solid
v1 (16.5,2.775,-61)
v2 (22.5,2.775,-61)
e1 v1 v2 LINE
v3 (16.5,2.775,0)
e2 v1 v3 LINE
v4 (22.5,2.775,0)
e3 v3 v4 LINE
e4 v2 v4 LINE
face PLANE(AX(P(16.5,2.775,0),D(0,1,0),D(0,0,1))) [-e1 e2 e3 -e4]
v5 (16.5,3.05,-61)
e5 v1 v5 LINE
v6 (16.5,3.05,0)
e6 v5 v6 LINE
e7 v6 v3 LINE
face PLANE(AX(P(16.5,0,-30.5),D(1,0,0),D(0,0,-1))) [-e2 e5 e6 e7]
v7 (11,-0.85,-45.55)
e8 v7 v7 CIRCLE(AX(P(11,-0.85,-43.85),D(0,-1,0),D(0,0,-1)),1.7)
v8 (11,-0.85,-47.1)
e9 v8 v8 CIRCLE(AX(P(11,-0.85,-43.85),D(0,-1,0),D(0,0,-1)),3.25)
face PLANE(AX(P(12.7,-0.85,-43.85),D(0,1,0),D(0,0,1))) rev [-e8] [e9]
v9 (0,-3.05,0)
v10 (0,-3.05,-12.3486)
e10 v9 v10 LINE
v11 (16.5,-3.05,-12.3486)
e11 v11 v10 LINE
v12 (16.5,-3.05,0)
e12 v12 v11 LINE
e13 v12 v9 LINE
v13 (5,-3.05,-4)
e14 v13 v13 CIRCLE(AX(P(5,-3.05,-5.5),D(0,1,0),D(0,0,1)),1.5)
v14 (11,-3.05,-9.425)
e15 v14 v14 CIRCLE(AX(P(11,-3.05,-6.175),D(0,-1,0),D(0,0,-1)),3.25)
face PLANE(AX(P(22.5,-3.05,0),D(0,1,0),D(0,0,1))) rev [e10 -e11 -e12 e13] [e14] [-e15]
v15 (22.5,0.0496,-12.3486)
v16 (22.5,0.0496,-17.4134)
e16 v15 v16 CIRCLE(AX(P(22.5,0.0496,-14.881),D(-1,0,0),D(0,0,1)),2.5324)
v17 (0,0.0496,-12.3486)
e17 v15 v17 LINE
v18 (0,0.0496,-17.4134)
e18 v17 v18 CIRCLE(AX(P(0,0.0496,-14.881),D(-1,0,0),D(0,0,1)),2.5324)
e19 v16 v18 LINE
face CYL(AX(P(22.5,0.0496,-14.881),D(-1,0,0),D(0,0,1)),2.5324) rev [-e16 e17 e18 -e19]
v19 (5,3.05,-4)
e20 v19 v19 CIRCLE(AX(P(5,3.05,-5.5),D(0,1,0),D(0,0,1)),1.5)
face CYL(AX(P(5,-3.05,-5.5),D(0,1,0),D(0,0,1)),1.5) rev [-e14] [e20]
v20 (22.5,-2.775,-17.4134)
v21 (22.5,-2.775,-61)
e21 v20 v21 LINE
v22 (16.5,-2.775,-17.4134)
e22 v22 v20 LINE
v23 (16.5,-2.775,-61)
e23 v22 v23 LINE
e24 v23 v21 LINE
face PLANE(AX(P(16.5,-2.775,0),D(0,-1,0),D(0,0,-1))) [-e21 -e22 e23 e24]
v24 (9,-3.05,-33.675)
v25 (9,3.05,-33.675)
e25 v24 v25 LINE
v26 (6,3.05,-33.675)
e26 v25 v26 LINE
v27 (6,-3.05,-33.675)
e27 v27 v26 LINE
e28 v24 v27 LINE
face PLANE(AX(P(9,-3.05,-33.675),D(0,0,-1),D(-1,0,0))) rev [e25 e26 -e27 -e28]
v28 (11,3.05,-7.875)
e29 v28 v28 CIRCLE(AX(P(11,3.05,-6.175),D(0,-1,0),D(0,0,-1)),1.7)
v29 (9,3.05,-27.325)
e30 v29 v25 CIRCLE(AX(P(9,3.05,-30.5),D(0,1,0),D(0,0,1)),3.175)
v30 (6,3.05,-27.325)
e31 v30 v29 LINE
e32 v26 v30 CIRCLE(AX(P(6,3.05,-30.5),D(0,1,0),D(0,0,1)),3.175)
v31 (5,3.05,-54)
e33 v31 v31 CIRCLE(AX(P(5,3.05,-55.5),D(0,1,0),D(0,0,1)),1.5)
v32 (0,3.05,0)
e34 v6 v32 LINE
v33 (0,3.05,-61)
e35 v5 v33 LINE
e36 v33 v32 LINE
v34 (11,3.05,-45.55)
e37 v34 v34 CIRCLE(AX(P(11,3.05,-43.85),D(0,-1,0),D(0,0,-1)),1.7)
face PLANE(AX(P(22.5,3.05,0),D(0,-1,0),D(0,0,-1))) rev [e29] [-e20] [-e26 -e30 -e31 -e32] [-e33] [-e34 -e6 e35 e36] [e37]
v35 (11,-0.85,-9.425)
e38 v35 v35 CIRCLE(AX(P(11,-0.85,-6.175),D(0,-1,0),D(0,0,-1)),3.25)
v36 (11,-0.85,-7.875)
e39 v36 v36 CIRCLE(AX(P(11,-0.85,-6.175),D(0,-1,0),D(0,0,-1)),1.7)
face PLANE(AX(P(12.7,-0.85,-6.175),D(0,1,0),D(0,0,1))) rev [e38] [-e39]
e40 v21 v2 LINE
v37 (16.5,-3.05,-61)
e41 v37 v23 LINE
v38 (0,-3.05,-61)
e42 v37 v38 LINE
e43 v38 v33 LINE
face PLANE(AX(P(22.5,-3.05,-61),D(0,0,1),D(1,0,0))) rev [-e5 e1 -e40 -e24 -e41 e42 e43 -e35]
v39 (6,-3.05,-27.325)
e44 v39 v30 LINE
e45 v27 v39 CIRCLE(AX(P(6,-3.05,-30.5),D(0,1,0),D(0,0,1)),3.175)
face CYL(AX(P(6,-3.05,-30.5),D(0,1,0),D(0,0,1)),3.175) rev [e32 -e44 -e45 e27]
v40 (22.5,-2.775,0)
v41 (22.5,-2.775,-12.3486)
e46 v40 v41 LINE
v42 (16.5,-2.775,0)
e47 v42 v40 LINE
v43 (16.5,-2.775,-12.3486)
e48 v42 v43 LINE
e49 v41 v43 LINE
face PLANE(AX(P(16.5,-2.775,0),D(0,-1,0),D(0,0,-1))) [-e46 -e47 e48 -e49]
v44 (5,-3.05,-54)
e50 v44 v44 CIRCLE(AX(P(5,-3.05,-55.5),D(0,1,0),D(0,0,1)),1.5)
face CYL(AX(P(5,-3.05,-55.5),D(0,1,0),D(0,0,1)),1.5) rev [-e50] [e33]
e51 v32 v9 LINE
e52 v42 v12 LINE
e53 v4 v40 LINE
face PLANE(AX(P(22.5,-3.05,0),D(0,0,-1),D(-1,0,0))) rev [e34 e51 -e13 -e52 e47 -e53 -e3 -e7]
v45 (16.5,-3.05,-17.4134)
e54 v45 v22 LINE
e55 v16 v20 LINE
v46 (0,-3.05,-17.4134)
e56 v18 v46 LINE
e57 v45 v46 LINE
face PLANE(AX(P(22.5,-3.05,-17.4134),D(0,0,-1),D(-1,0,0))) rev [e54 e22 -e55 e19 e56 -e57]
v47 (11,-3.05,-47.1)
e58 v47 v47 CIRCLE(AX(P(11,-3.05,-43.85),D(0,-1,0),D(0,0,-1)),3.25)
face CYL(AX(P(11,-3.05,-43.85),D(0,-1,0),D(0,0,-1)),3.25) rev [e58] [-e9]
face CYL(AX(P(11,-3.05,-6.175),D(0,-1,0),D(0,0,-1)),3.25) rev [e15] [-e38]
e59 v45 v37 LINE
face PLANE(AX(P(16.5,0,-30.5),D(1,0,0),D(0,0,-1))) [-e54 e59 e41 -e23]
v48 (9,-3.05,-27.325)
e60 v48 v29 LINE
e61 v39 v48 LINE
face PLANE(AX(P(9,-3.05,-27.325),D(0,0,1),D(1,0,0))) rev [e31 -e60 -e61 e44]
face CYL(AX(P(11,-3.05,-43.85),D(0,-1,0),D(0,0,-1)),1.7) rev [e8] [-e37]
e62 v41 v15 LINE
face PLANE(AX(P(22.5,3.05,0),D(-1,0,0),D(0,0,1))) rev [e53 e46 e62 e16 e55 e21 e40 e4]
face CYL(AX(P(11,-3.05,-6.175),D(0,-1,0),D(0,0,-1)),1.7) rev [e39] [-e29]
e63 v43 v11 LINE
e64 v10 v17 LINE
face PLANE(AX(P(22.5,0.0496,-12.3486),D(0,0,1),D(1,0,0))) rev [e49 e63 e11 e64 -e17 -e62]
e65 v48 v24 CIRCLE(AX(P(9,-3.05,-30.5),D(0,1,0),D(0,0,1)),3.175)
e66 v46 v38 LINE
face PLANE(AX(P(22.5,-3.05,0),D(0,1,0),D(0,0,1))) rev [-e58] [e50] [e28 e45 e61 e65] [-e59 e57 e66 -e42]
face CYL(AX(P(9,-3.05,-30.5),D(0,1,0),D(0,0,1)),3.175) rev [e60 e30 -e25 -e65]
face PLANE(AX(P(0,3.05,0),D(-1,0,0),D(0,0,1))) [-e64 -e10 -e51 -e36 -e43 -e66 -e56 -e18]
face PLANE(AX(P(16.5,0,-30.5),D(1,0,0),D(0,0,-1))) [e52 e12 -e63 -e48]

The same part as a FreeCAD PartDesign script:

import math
import FreeCAD as App
import Part
import Sketcher

V = App.Vector


def add_polygon(sketch, points):
    """Adds a closed chain of lines whose ends are joined by coincident constraints."""
    first, n = sketch.GeometryCount, len(points)
    for a, b in zip(points, points[1:] + points[:1]):
        sketch.addGeometry(Part.LineSegment(App.Vector(*a, 0), App.Vector(*b, 0)), False)
    for i in range(n):
        sketch.addConstraint(Sketcher.Constraint("Coincident", first + i, 2, first + (i + 1) % n, 1))

doc = App.newDocument("Part")
body = doc.addObject("PartDesign::Body", "Body")

# Sketch on YZ plane
sketch1 = body.newObject("Sketcher::SketchObject", "Sketch")
sketch1.AttachmentSupport = (doc.getObject("YZ_Plane"), [""])
sketch1.MapMode = "FlatFace"
add_polygon(sketch1, [(3, 0), (-3, 0), (-3, -61), (3, -61)])  # lines 0-3
sketch1.addConstraint(Sketcher.Constraint("Horizontal", 0))
sketch1.addConstraint(Sketcher.Constraint("Vertical", 1))
sketch1.addConstraint(Sketcher.Constraint("Horizontal", 2))
sketch1.addConstraint(Sketcher.Constraint("Vertical", 3))
sketch1.addConstraint(Sketcher.Constraint("Symmetric", 0, 2, 3, 2, -1, 1))
sketch1.addConstraint(Sketcher.Constraint("DistanceY", 1, 2, 1, 1, 61.0))
sketch1.addConstraint(Sketcher.Constraint("DistanceX", 0, 2, 0, 1, 6.1))
pad1 = body.newObject("PartDesign::Pad", "Pad")
pad1.Profile = sketch1
pad1.Length = 22.5

# Sketch on YZ plane
sketch2 = body.newObject("Sketcher::SketchObject", "Sketch001")
sketch2.AttachmentSupport = (doc.getObject("YZ_Plane"), [""])
sketch2.MapMode = "FlatFace"
sketch2.AttachmentOffset = App.Placement(V(0, 0, 22.5), App.Rotation())
add_polygon(sketch2, [(11, 8), (-11, 8), (-11, -69), (11, -69)])  # lines 0-3
add_polygon(sketch2, [(-3, -61), (-3, 0), (3, 0), (3, -61)])  # lines 4-7
sketch2.addConstraint(Sketcher.Constraint("Horizontal", 0))
sketch2.addConstraint(Sketcher.Constraint("Vertical", 1))
sketch2.addConstraint(Sketcher.Constraint("Horizontal", 2))
sketch2.addConstraint(Sketcher.Constraint("Vertical", 3))
sketch2.addConstraint(Sketcher.Constraint("Vertical", 4))
sketch2.addConstraint(Sketcher.Constraint("Horizontal", 5))
sketch2.addConstraint(Sketcher.Constraint("Vertical", 6))
sketch2.addConstraint(Sketcher.Constraint("Horizontal", 7))
sketch2.addConstraint(Sketcher.Constraint("Symmetric", 4, 2, 5, 2, -1, 1))
sketch2.addConstraint(Sketcher.Constraint("DistanceY", 4, 1, 4, 2, 61.0))
sketch2.addConstraint(Sketcher.Constraint("DistanceX", 0, 2, 0, 1, 21.16))
sketch2.addConstraint(Sketcher.Constraint("DistanceX", 5, 1, 5, 2, 5.55))
sketch2.addConstraint(Sketcher.Constraint("DistanceY", 1, 2, 1, 1, 76.06))
sketch2.addConstraint(Sketcher.Constraint("DistanceX", 0, 2, -1, 1, 10.58))
sketch2.addConstraint(Sketcher.Constraint("DistanceY", -1, 1, 0, 2, 7.53))
pocket1 = body.newObject("PartDesign::Pocket", "Pocket")
pocket1.Profile = sketch2
pocket1.Length = 6

# Sketch on YZ plane
sketch3 = body.newObject("Sketcher::SketchObject", "Sketch002")
sketch3.AttachmentSupport = (doc.getObject("YZ_Plane"), [""])
sketch3.MapMode = "FlatFace"
sketch3.addGeometry(Part.LineSegment(V(-3, -12.3, 0), V(0, -12.3, 0)), False)
sketch3.addGeometry(Part.ArcOfCircle(Part.Circle(V(0, -14.9, 0), V(0, 0, 1), 2.5), math.radians(-90), math.radians(90)), False)
sketch3.addGeometry(Part.LineSegment(V(0, -17.4, 0), V(-3, -17.4, 0)), False)
sketch3.addGeometry(Part.LineSegment(V(-3, -17.4, 0), V(-3, -12.3, 0)), False)
sketch3.addConstraint(Sketcher.Constraint("Tangent", 0, 2, 1, 2))
sketch3.addConstraint(Sketcher.Constraint("Tangent", 1, 1, 2, 1))
sketch3.addConstraint(Sketcher.Constraint("Coincident", 2, 2, 3, 1))
sketch3.addConstraint(Sketcher.Constraint("Coincident", 3, 2, 0, 1))
sketch3.addConstraint(Sketcher.Constraint("Horizontal", 0))
sketch3.addConstraint(Sketcher.Constraint("Horizontal", 2))
sketch3.addConstraint(Sketcher.Constraint("Vertical", 3))
sketch3.addConstraint(Sketcher.Constraint("Radius", 1, 2.5324))
sketch3.addConstraint(Sketcher.Constraint("DistanceX", 2, 2, -1, 1, 3.05))
sketch3.addConstraint(Sketcher.Constraint("DistanceX", 0, 1, 0, 2, 3.0996))
sketch3.addConstraint(Sketcher.Constraint("DistanceY", 1, 3, -1, 1, 14.881))
pocket2 = body.newObject("PartDesign::Pocket", "Pocket001")
pocket2.Profile = sketch3
pocket2.Type = "ThroughAll"
pocket2.Reversed = True

# Sketch on XZ plane
sketch4 = body.newObject("Sketcher::SketchObject", "Sketch003")
sketch4.AttachmentSupport = (doc.getObject("XZ_Plane"), [""])
sketch4.MapMode = "FlatFace"
sketch4.AttachmentOffset = App.Placement(V(0, 0, -3.05), App.Rotation())
sketch4.addGeometry(Part.LineSegment(V(6, -27.3, 0), V(9, -27.3, 0)), False)
sketch4.addGeometry(Part.ArcOfCircle(Part.Circle(V(9, -30.5, 0), V(0, 0, 1), 3.2), math.radians(-90), math.radians(90)), False)
sketch4.addGeometry(Part.LineSegment(V(9, -33.7, 0), V(6, -33.7, 0)), False)
sketch4.addGeometry(Part.ArcOfCircle(Part.Circle(V(6, -30.5, 0), V(0, 0, 1), 3.2), math.radians(90), math.radians(270)), False)
sketch4.addConstraint(Sketcher.Constraint("Tangent", 0, 2, 1, 2))
sketch4.addConstraint(Sketcher.Constraint("Tangent", 1, 1, 2, 1))
sketch4.addConstraint(Sketcher.Constraint("Tangent", 2, 2, 3, 2))
sketch4.addConstraint(Sketcher.Constraint("Tangent", 3, 1, 0, 1))
sketch4.addConstraint(Sketcher.Constraint("Horizontal", 0))
sketch4.addConstraint(Sketcher.Constraint("Horizontal", 2))
sketch4.addConstraint(Sketcher.Constraint("DistanceX", 0, 1, 0, 2, 3.0))
sketch4.addConstraint(Sketcher.Constraint("DistanceX", -1, 1, 1, 3, 9.0))
sketch4.addConstraint(Sketcher.Constraint("Radius", 1, 3.175))
sketch4.addConstraint(Sketcher.Constraint("DistanceY", 1, 3, -1, 1, 30.5))
pocket3 = body.newObject("PartDesign::Pocket", "Pocket002")
pocket3.Profile = sketch4
pocket3.Type = "ThroughAll"
pocket3.Reversed = True

# Sketch on XZ plane
sketch5 = body.newObject("Sketcher::SketchObject", "Sketch004")
sketch5.AttachmentSupport = (doc.getObject("XZ_Plane"), [""])
sketch5.MapMode = "FlatFace"
sketch5.AttachmentOffset = App.Placement(V(0, 0, -3.05), App.Rotation())
sketch5.addGeometry(Part.Circle(V(5, -55.5, 0), V(0, 0, 1), 1.5), False)
sketch5.addGeometry(Part.Circle(V(5, -5.5, 0), V(0, 0, 1), 1.5), False)
sketch5.addConstraint(Sketcher.Constraint("Equal", 0, 1))
sketch5.addConstraint(Sketcher.Constraint("Vertical", 0, 3, 1, 3))
sketch5.addConstraint(Sketcher.Constraint("Diameter", 0, 3.0))
sketch5.addConstraint(Sketcher.Constraint("DistanceX", -1, 1, 0, 3, 5.0))
sketch5.addConstraint(Sketcher.Constraint("DistanceY", 0, 3, 1, 3, 50.0))
sketch5.addConstraint(Sketcher.Constraint("DistanceY", 0, 3, -1, 1, 55.5))
pocket4 = body.newObject("PartDesign::Pocket", "Pocket003")
pocket4.Profile = sketch5
pocket4.Type = "ThroughAll"
pocket4.Reversed = True

# Sketch on XZ plane
sketch6 = body.newObject("Sketcher::SketchObject", "Sketch005")
sketch6.AttachmentSupport = (doc.getObject("XZ_Plane"), [""])
sketch6.MapMode = "FlatFace"
sketch6.AttachmentOffset = App.Placement(V(0, 0, 3.05), App.Rotation())
sketch6.addGeometry(Part.Circle(V(11, -6.2, 0), V(0, 0, 1), 1.7), False)
sketch6.addGeometry(Part.Circle(V(11, -43.9, 0), V(0, 0, 1), 1.7), False)
sketch6.addConstraint(Sketcher.Constraint("Equal", 0, 1))
sketch6.addConstraint(Sketcher.Constraint("Vertical", 0, 3, 1, 3))
sketch6.addConstraint(Sketcher.Constraint("Diameter", 0, 3.4))
sketch6.addConstraint(Sketcher.Constraint("DistanceX", -1, 1, 0, 3, 11.0))
sketch6.addConstraint(Sketcher.Constraint("DistanceY", 1, 3, -1, 1, 43.85))
sketch6.addConstraint(Sketcher.Constraint("DistanceY", 0, 3, -1, 1, 6.175))
doc.recompute()
hole = body.newObject("PartDesign::Hole", "Hole")
hole.Profile = sketch6
hole.ThreadType = "None"
hole.Diameter = 3.4
hole.DepthType = "ThroughAll"
hole.HoleCutType = "Counterbore"
hole.HoleCutDiameter = 6.5
hole.HoleCutDepth = 2.2

doc.recompute()
